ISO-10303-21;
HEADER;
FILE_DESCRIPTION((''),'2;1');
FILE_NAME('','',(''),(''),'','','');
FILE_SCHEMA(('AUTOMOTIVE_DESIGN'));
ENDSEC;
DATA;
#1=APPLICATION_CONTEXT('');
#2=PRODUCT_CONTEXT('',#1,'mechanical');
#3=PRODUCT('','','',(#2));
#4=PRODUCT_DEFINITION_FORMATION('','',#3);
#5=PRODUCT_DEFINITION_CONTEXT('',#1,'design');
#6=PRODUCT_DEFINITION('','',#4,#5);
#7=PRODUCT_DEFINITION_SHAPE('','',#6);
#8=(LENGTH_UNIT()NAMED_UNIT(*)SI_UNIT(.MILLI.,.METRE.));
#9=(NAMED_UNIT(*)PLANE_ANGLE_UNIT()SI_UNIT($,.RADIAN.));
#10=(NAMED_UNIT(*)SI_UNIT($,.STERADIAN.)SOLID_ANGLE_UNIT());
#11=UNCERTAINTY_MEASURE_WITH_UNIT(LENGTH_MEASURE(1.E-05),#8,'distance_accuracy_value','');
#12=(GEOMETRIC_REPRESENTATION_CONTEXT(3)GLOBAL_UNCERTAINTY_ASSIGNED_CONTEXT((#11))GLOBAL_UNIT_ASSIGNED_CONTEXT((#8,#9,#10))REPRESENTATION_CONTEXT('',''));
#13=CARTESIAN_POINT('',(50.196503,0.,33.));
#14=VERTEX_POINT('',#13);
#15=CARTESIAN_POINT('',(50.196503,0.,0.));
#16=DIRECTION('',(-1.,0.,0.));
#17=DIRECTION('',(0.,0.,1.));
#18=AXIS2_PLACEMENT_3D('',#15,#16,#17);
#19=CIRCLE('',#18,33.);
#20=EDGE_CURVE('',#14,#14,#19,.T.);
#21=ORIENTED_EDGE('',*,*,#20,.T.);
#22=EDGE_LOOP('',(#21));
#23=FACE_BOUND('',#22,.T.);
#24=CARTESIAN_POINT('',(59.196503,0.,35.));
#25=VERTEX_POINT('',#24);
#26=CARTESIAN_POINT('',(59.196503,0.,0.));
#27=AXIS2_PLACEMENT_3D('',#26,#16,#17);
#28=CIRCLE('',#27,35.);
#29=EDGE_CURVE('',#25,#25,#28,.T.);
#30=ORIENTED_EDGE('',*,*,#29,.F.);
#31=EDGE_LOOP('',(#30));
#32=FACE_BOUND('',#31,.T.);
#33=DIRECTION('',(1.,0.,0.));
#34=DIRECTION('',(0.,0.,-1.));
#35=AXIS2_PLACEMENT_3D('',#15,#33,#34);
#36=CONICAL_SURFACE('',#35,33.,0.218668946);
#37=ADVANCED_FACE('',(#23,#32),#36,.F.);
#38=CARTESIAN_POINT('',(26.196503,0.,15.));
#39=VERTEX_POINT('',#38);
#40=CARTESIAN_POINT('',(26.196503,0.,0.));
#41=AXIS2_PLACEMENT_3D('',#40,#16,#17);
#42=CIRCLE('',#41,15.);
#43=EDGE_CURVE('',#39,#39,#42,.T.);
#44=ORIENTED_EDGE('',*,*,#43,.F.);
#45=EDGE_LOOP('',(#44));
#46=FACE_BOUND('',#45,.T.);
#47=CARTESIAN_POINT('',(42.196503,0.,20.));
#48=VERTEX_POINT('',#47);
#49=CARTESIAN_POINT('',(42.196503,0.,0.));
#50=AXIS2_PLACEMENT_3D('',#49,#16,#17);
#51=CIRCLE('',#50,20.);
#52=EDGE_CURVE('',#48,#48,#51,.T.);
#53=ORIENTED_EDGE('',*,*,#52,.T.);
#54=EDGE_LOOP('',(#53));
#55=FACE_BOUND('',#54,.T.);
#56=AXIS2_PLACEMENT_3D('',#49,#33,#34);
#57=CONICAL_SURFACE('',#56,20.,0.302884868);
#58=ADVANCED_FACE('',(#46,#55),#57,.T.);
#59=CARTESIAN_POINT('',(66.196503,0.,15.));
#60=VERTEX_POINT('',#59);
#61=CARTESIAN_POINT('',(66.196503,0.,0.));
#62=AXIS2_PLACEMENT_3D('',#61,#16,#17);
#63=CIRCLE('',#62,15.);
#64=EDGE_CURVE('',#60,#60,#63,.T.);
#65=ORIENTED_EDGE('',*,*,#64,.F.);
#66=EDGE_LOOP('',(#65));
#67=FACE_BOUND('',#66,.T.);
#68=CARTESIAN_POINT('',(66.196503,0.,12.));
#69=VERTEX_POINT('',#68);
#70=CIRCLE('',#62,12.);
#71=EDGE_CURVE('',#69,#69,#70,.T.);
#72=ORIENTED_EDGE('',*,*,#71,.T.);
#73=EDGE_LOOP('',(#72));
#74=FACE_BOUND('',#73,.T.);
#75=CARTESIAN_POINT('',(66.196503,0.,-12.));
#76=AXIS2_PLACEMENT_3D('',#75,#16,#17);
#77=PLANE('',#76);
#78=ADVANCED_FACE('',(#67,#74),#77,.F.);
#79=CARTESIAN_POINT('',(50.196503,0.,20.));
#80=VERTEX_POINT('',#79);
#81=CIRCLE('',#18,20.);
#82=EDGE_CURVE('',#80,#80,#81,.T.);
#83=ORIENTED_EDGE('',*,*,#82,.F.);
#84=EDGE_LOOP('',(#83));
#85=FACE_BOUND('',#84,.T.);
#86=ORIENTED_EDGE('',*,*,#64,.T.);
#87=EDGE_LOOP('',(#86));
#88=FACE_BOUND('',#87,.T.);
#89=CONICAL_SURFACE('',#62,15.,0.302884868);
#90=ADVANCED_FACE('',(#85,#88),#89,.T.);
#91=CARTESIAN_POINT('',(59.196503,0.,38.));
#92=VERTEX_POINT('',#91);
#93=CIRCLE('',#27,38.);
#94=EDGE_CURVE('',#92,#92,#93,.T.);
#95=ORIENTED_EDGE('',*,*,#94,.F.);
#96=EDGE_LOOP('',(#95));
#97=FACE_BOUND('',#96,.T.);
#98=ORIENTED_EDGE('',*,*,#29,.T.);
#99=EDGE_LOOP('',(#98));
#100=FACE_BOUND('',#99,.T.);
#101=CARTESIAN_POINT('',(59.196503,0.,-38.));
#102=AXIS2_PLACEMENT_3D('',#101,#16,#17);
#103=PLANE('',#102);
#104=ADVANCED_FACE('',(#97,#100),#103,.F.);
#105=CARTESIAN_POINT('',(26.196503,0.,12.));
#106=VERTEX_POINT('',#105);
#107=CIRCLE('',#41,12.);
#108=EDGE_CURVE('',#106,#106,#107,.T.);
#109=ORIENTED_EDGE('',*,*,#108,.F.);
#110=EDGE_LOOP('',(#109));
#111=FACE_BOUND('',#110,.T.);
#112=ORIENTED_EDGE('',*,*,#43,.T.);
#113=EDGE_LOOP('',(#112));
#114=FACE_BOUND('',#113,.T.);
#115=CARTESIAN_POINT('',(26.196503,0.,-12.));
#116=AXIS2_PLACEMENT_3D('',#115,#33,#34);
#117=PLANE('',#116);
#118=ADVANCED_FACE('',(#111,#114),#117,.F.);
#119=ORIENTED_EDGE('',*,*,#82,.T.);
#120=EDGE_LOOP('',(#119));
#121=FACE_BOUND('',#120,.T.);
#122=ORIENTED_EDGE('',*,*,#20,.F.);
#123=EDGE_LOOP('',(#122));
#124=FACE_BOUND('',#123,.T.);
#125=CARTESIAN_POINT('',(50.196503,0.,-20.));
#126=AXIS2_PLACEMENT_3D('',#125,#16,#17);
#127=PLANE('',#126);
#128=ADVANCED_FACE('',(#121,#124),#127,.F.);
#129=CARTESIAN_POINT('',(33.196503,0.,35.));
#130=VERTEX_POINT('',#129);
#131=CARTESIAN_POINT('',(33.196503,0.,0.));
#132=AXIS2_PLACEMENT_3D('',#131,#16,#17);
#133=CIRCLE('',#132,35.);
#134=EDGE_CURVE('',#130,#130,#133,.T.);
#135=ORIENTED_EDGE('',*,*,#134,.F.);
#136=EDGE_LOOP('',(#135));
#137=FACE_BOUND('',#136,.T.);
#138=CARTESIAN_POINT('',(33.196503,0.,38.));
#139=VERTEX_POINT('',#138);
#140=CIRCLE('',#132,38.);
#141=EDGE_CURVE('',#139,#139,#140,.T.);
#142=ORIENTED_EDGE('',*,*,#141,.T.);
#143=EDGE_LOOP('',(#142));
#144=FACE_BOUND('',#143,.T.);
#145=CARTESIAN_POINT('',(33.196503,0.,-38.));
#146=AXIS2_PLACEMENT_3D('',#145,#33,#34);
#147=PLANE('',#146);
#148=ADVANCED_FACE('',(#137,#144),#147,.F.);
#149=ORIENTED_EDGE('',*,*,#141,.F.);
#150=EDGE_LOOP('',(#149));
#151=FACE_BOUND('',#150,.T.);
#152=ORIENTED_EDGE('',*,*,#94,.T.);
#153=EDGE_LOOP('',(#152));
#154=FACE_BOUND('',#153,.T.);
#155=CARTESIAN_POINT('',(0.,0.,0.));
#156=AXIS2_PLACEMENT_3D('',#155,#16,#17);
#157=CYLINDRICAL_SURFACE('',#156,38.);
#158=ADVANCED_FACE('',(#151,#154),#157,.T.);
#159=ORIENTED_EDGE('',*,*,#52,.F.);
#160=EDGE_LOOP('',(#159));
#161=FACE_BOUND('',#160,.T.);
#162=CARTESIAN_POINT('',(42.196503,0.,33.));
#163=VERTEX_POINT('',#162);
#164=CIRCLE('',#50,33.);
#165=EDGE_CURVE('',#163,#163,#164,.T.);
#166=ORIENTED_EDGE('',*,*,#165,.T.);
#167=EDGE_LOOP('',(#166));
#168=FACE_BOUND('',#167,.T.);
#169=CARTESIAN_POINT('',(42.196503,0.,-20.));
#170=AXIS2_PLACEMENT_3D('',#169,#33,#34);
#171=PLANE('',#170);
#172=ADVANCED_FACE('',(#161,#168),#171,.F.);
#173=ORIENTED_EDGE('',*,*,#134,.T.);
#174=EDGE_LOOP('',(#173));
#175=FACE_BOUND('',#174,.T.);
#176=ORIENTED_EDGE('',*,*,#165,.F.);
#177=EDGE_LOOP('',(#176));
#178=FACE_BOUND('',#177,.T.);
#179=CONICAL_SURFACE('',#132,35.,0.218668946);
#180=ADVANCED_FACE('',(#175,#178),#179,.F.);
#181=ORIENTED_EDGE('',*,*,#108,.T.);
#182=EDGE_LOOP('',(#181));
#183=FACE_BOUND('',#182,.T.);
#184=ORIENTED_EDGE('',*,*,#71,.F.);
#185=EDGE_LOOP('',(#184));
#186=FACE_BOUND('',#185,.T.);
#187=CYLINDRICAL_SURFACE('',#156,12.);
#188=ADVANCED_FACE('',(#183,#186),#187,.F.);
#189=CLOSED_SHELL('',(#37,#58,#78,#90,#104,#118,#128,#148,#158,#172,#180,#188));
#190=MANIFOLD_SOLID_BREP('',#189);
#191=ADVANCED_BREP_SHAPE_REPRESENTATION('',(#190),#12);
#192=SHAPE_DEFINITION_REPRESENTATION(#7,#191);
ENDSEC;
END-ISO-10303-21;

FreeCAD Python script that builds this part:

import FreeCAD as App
import Part
import Sketcher

V = App.Vector

doc = App.newDocument("Part")
body = doc.addObject("PartDesign::Body", "Body")

# Sketch on XZ plane
sketch1 = body.newObject("Sketcher::SketchObject", "Sketch")
sketch1.AttachmentSupport = (doc.getObject("XZ_Plane"), [""])
sketch1.MapMode = "FlatFace"
sketch1.addGeometry([
    Part.LineSegment(V(26.196503, -12, 0), V(66.196503, -12, 0)),  # 0
    Part.LineSegment(V(66.196503, -12, 0), V(66.196503, -15, 0)),  # 1
    Part.LineSegment(V(66.196503, -15, 0), V(50.196503, -20, 0)),  # 2
    Part.LineSegment(V(50.196503, -20, 0), V(50.196503, -33, 0)),  # 3
    Part.LineSegment(V(50.196503, -33, 0), V(59.196503, -35, 0)),  # 4
    Part.LineSegment(V(59.196503, -35, 0), V(59.196503, -38, 0)),  # 5
    Part.LineSegment(V(59.196503, -38, 0), V(33.196503, -38, 0)),  # 6
    Part.LineSegment(V(33.196503, -38, 0), V(33.196503, -35, 0)),  # 7
    Part.LineSegment(V(33.196503, -35, 0), V(42.196503, -33, 0)),  # 8
    Part.LineSegment(V(42.196503, -33, 0), V(42.196503, -20, 0)),  # 9
    Part.LineSegment(V(42.196503, -20, 0), V(26.196503, -15, 0)),  # 10
    Part.LineSegment(V(26.196503, -15, 0), V(26.196503, -12, 0)),  # 11
], False)
sketch1.addConstraint([
    Sketcher.Constraint("Coincident", 0, 2, 1, 1),
    Sketcher.Constraint("Coincident", 1, 2, 2, 1),
    Sketcher.Constraint("Coincident", 2, 2, 3, 1),
    Sketcher.Constraint("Coincident", 3, 2, 4, 1),
    Sketcher.Constraint("Coincident", 4, 2, 5, 1),
    Sketcher.Constraint("Coincident", 5, 2, 6, 1),
    Sketcher.Constraint("Coincident", 6, 2, 7, 1),
    Sketcher.Constraint("Coincident", 7, 2, 8, 1),
    Sketcher.Constraint("Coincident", 8, 2, 9, 1),
    Sketcher.Constraint("Coincident", 9, 2, 10, 1),
    Sketcher.Constraint("Coincident", 10, 2, 11, 1),
    Sketcher.Constraint("Coincident", 11, 2, 0, 1),
    Sketcher.Constraint("Horizontal", 0),
    Sketcher.Constraint("Vertical", 1),
    Sketcher.Constraint("Vertical", 3),
    Sketcher.Constraint("Vertical", 5),
    Sketcher.Constraint("Horizontal", 6),
    Sketcher.Constraint("Vertical", 7),
    Sketcher.Constraint("Vertical", 9),
    Sketcher.Constraint("Vertical", 11),
    Sketcher.Constraint("Horizontal", 4, 2, 7, 2),
    Sketcher.Constraint("Horizontal", 3, 2, 8, 2),
    Sketcher.Constraint("Horizontal", 2, 2, 9, 2),
    Sketcher.Constraint("Horizontal", 1, 2, 10, 2),
    Sketcher.Constraint("Equal", 1, 5),
    Sketcher.Constraint("Equal", 4, 8),
    Sketcher.Constraint("Equal", 2, 10),
    Sketcher.Constraint("DistanceX", 0, 1, 0, 2, 40.0),
    Sketcher.Constraint("DistanceX", 6, 2, 6, 1, 26.0),
    Sketcher.Constraint("DistanceY", 1, 2, 1, 1, 3.0),
    Sketcher.Constraint("DistanceY", 3, 2, 3, 1, 13.0),
    Sketcher.Constraint("DistanceY", 0, 2, -1, 1, 12.0),
    Sketcher.Constraint("DistanceY", 2, 2, -1, 1, 20.0),
    Sketcher.Constraint("DistanceY", 4, 2, -1, 1, 35.0),
    Sketcher.Constraint("DistanceX", 2, 2, 1, 2, 16.0),
    Sketcher.Constraint("DistanceX", -1, 1, 0, 2, 66.196503),
])
revolution = body.newObject("PartDesign::Revolution", "Revolution")
revolution.Profile = sketch1
revolution.ReferenceAxis = (sketch1, ["H_Axis"])
revolution.Angle = 360

doc.recompute()
